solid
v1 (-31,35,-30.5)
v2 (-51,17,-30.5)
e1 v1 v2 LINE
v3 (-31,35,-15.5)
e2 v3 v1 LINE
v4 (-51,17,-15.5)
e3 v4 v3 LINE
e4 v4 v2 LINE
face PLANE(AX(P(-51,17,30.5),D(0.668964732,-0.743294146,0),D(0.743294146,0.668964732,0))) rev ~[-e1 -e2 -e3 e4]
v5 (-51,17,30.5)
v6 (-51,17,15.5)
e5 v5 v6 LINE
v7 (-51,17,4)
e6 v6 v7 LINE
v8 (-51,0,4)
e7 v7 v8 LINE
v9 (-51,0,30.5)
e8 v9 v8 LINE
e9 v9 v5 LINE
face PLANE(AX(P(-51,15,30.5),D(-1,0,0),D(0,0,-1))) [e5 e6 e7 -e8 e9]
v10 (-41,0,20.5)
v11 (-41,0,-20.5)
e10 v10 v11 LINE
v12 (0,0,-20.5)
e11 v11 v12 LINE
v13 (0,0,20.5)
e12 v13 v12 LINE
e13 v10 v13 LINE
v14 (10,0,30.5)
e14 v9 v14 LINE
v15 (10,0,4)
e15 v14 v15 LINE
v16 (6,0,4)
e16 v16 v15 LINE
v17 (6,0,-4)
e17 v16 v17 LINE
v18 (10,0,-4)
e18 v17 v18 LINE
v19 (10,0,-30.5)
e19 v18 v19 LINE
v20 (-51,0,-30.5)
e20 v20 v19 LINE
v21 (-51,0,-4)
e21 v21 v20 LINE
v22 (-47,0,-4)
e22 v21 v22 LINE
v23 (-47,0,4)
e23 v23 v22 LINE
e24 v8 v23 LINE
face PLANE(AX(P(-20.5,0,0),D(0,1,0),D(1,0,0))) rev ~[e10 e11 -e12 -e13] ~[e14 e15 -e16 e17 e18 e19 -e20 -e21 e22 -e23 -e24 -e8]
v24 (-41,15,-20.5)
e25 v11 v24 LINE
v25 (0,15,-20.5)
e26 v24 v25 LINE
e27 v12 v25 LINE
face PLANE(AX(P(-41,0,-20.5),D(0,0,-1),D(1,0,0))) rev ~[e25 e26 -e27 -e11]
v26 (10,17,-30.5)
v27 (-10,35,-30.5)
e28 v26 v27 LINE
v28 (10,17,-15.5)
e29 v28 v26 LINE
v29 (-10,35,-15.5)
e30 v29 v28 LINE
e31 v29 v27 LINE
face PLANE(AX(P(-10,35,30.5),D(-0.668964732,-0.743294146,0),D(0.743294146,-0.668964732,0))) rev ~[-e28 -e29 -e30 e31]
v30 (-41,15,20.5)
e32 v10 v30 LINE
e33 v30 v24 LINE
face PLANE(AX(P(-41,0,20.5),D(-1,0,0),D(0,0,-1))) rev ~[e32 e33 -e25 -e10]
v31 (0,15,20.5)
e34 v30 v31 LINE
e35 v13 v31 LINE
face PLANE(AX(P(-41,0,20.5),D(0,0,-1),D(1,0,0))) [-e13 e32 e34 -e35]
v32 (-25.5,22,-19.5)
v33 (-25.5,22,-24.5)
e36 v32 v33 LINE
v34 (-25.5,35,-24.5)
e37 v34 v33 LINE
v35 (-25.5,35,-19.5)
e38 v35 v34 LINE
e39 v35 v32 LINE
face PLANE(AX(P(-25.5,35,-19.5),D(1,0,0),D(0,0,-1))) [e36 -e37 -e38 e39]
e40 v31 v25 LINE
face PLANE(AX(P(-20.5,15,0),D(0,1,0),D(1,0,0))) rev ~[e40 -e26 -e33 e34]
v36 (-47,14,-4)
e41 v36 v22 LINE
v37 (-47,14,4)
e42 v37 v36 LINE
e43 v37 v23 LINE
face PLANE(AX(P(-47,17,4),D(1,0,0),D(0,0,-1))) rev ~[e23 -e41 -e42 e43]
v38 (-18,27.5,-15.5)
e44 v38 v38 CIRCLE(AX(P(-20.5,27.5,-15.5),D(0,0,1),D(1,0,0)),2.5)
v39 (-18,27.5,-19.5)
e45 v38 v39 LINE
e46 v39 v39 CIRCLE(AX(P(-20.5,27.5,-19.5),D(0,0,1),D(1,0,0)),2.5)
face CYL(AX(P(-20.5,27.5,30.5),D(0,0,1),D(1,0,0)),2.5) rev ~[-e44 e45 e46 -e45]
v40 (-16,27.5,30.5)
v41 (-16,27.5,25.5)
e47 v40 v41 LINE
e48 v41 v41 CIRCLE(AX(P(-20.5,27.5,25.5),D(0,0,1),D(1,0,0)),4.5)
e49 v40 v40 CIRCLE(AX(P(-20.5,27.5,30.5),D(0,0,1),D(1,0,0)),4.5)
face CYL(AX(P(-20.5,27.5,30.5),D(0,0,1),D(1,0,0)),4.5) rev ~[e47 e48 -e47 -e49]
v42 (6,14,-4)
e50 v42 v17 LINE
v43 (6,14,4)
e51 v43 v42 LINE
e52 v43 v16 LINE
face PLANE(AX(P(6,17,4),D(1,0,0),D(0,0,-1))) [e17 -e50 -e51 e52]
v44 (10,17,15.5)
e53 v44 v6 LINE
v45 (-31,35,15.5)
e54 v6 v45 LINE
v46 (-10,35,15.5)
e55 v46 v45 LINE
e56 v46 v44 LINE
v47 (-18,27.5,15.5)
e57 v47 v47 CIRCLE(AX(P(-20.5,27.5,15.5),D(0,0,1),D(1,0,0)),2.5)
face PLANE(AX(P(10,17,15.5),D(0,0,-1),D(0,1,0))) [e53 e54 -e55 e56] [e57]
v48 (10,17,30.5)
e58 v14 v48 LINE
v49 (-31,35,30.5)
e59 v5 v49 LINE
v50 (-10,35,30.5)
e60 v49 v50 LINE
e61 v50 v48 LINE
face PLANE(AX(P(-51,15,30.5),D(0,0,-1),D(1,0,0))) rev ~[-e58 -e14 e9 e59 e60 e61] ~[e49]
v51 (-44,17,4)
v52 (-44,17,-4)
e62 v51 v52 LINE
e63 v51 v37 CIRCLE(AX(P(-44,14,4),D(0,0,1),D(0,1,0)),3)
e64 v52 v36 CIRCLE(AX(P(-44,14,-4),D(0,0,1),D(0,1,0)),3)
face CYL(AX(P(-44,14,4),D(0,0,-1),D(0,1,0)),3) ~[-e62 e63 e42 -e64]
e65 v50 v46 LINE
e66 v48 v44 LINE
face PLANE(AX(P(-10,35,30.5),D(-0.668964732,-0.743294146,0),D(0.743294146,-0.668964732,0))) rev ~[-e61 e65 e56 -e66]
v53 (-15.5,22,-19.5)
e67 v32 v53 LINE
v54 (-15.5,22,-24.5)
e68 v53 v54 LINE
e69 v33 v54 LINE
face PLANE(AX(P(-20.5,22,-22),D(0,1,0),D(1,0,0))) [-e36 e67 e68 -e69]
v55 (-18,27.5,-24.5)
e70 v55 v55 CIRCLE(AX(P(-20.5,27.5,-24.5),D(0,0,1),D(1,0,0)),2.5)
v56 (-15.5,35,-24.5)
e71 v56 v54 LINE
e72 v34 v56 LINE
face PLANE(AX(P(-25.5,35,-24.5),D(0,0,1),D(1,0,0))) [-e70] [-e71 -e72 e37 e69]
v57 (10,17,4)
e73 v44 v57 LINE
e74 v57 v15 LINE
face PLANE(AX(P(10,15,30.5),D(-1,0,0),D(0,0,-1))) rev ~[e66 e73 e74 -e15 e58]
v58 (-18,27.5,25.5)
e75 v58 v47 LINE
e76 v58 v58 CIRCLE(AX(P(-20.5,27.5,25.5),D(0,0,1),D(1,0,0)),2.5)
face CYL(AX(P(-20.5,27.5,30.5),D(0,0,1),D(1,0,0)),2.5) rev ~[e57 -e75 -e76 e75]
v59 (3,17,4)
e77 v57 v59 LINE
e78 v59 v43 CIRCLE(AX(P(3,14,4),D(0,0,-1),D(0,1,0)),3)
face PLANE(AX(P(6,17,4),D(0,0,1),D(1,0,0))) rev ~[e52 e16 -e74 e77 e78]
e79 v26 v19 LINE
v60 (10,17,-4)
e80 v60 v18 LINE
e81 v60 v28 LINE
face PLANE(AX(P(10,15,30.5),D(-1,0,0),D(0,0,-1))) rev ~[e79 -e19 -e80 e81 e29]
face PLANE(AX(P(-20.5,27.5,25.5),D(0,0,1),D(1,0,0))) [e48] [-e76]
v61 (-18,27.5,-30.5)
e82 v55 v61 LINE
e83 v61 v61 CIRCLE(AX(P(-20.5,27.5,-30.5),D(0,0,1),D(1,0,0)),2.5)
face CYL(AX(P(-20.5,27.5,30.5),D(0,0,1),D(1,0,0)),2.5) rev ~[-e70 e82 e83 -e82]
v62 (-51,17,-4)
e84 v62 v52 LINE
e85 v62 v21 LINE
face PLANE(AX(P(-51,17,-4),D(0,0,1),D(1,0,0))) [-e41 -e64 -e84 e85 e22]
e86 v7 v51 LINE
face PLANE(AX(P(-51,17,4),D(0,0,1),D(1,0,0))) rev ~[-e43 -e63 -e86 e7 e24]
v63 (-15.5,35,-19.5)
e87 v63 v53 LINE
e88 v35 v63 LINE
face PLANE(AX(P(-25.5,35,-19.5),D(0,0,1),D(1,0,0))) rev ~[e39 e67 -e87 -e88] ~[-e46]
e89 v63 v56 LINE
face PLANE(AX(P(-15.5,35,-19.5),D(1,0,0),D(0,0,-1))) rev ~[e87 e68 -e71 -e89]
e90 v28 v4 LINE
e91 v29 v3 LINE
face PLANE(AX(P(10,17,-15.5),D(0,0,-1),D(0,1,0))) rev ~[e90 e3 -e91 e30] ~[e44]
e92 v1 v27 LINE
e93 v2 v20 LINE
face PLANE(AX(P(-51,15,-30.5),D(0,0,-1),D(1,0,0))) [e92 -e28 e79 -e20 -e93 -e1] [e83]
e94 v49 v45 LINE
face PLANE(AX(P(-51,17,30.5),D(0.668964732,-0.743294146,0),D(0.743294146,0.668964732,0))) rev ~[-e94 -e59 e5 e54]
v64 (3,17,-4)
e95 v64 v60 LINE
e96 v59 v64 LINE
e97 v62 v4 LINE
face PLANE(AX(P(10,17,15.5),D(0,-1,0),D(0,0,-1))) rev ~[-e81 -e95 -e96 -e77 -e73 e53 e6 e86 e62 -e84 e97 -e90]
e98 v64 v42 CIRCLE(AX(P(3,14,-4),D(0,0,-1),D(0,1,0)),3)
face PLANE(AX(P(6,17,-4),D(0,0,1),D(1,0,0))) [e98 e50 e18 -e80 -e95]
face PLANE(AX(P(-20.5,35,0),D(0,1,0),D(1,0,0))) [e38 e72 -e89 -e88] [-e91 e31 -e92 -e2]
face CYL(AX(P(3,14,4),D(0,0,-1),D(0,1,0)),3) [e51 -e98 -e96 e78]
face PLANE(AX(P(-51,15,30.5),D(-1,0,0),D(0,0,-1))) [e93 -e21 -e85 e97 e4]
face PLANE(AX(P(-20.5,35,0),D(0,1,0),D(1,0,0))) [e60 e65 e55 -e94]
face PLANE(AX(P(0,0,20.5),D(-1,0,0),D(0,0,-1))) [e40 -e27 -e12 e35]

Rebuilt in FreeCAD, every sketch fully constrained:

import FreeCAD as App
import Part
import Sketcher
Q = App.Units.Quantity


def edges_at(feature, points):
    """Names of the edges that pass closest to the given points."""
    edges = feature.Shape.Edges
    near = lambda p: min(range(len(edges)), key=lambda i: edges[i].distToShape(Part.Vertex(*p))[0])
    return sorted({f"Edge{near(p) + 1}" for p in points})


def add_polygon(sketch, points):
    """Adds a closed chain of lines whose ends are joined by coincident constraints."""
    first, n = sketch.GeometryCount, len(points)
    for a, b in zip(points, points[1:] + points[:1]):
        sketch.addGeometry(Part.LineSegment(App.Vector(*a, 0), App.Vector(*b, 0)), False)
    for i in range(n):
        sketch.addConstraint(Sketcher.Constraint("Coincident", first + i, 2, first + (i + 1) % n, 1))

doc = App.newDocument("Part")
params = doc.addObject("Spreadsheet::Sheet", "Params")
for row, (alias, value) in enumerate([
    ("sketch1_width", "61 mm"),
    ("sketch1_width2", "41 mm"),
    ("pad1_length", "15 mm"),
    ("sketch2_width", "61 mm"),
    ("pad2_length", "20 mm"),
    ("sketch3_diameter", "5 mm"),
    ("sketch3_width", "20 mm"),
    ("sketch3_height", "18 mm"),
    ("pocket1_length", "90 mm"),
    ("sketch4_width", "18 mm"),
    ("sketch4_height", "31 mm"),
    ("pocket2_length", "90 mm"),
    ("sketch5_width", "4 mm"),
    ("sketch5_height", "8 mm"),
    ("pocket3_length", "90 mm"),
    ("sketch6_diameter", "9 mm"),
    ("pocket4_length", "5 mm"),
    ("sketch7_width", "10 mm"),
    ("sketch7_height", "5 mm"),
    ("pocket5_length", "13 mm"),
    ("fillet_radius", "3 mm"),
], start=1):
    params.set(f"A{row}", alias)
    params.set(f"B{row}", "=" + value)
    params.setAlias(f"B{row}", alias)

body = doc.addObject("PartDesign::Body", "Body")

# Sketch on XZ plane
sketch1 = body.newObject("Sketcher::SketchObject", "Sketch")
sketch1.AttachmentSupport = (doc.getObject("XZ_Plane"), [""])
sketch1.MapMode = "FlatFace"
add_polygon(sketch1, [(-51, -30.5), (-51, 30.5), (10, 30.5), (10, -30.5)])  # lines 0-3
add_polygon(sketch1, [(0, 20.5), (-41, 20.5), (-41, -20.5), (0, -20.5)])  # lines 4-7
sketch1.addConstraint([
    Sketcher.Constraint("Vertical", 0),
    Sketcher.Constraint("Horizontal", 1),
    Sketcher.Constraint("Vertical", 2),
    Sketcher.Constraint("Horizontal", 3),
    Sketcher.Constraint("Horizontal", 4),
    Sketcher.Constraint("Vertical", 5),
    Sketcher.Constraint("Horizontal", 6),
    Sketcher.Constraint("Vertical", 7),
    Sketcher.Constraint("Symmetric", 6, 2, 7, 2, -1, 1),
    Sketcher.Constraint("Equal", 3, 0),
    Sketcher.Constraint("Equal", 6, 5),
    Sketcher.Constraint("DistanceX", 1, 1, 1, 2, Q("61 mm")),
    Sketcher.Constraint("DistanceX", 4, 2, 4, 1, Q("41 mm")),
    Sketcher.Constraint("DistanceX", 0, 2, -1, 1, Q("51 mm")),
    Sketcher.Constraint("DistanceY", 4, 2, 0, 2, Q("10 mm")),
])
sketch1.setExpression("Constraints[19]", "Params.sketch1_width")
sketch1.setExpression("Constraints[20]", "Params.sketch1_width2")
pad1 = body.newObject("PartDesign::Pad", "Pad")
pad1.Profile = sketch1
pad1.setExpression("Length", "Params.pad1_length")
pad1.Reversed = True

# Sketch on XZ plane
sketch2 = body.newObject("Sketcher::SketchObject", "Sketch001")
sketch2.AttachmentSupport = (doc.getObject("XZ_Plane"), [""])
sketch2.MapMode = "FlatFace"
sketch2.AttachmentOffset = App.Placement(App.Vector(0, 0, -15), App.Rotation())
add_polygon(sketch2, [(-51, -30.5), (-51, 30.5), (10, 30.5), (10, -30.5)])  # lines 0-3
sketch2.addConstraint([
    Sketcher.Constraint("Vertical", 0),
    Sketcher.Constraint("Horizontal", 1),
    Sketcher.Constraint("Vertical", 2),
    Sketcher.Constraint("Horizontal", 3),
    Sketcher.Constraint("Equal", 3, 0),
    Sketcher.Constraint("DistanceX", 1, 1, 1, 2, Q("61 mm")),
    Sketcher.Constraint("DistanceX", 0, 2, -1, 1, Q("51 mm")),
    Sketcher.Constraint("DistanceY", -1, 1, 0, 2, Q("30.5 mm")),
])
sketch2.setExpression("Constraints[9]", "Params.sketch2_width")
pad2 = body.newObject("PartDesign::Pad", "Pad001")
pad2.Profile = sketch2
pad2.setExpression("Length", "Params.pad2_length")
pad2.Reversed = True

# Sketch on XY plane
sketch3 = body.newObject("Sketcher::SketchObject", "Sketch002")
sketch3.AttachmentSupport = (doc.getObject("XY_Plane"), [""])
sketch3.MapMode = "FlatFace"
sketch3.AttachmentOffset = App.Placement(App.Vector(0, 0, 30.5), App.Rotation())
sketch3.addGeometry(Part.Circle(App.Vector(-20.5, 27.5, 0), App.Vector(0, 0, 1), 2.5), False)  # 0
add_polygon(sketch3, [(-51, 17), (-31, 35), (-51, 35)])  # lines 1-3
add_polygon(sketch3, [(-10, 35), (10, 17), (10, 35)])  # lines 4-6
sketch3.addConstraint([
    Sketcher.Constraint("Horizontal", 2),
    Sketcher.Constraint("Vertical", 3),
    Sketcher.Constraint("Vertical", 5),
    Sketcher.Constraint("Horizontal", 6),
    Sketcher.Constraint("Horizontal", 3, 2, 4, 2),
    Sketcher.Constraint("Horizontal", 2, 2, 5, 2),
    Sketcher.Constraint("Equal", 2, 6),
    Sketcher.Constraint("Diameter", 0, Q("5 mm")),
    Sketcher.Constraint("DistanceX", 2, 2, 2, 1, Q("20 mm")),
    Sketcher.Constraint("DistanceY", 3, 2, 3, 1, Q("18 mm")),
    Sketcher.Constraint("DistanceX", 1, 2, -1, 1, Q("31 mm")),
    Sketcher.Constraint("DistanceY", -1, 1, 1, 2, Q("35 mm")),
    Sketcher.Constraint("DistanceX", -1, 1, 4, 2, Q("10 mm")),
    Sketcher.Constraint("DistanceX", 0, 3, -1, 1, Q("20.5 mm")),
    Sketcher.Constraint("DistanceY", -1, 1, 0, 3, Q("27.5 mm")),
])
sketch3.setExpression("Constraints[13]", "Params.sketch3_diameter")
sketch3.setExpression("Constraints[14]", "Params.sketch3_width")
sketch3.setExpression("Constraints[15]", "Params.sketch3_height")
pocket1 = body.newObject("PartDesign::Pocket", "Pocket")
pocket1.Profile = sketch3
pocket1.setExpression("Length", "Params.pocket1_length")

# Sketch on YZ plane
sketch4 = body.newObject("Sketcher::SketchObject", "Sketch003")
sketch4.AttachmentSupport = (doc.getObject("YZ_Plane"), [""])
sketch4.MapMode = "FlatFace"
sketch4.AttachmentOffset = App.Placement(App.Vector(0, 0, 10), App.Rotation())
add_polygon(sketch4, [(35, 15.5), (17, 15.5), (17, -15.5), (35, -15.5)])  # lines 0-3
sketch4.addConstraint([
    Sketcher.Constraint("Horizontal", 0),
    Sketcher.Constraint("Vertical", 1),
    Sketcher.Constraint("Horizontal", 2),
    Sketcher.Constraint("Vertical", 3),
    Sketcher.Constraint("DistanceX", 0, 2, 0, 1, Q("18 mm")),
    Sketcher.Constraint("DistanceY", 1, 2, 1, 1, Q("31 mm")),
    Sketcher.Constraint("DistanceX", -1, 1, 0, 2, Q("17 mm")),
    Sketcher.Constraint("DistanceY", -1, 1, 0, 2, Q("15.5 mm")),
])
sketch4.setExpression("Constraints[8]", "Params.sketch4_width")
sketch4.setExpression("Constraints[9]", "Params.sketch4_height")
pocket2 = body.newObject("PartDesign::Pocket", "Pocket001")
pocket2.Profile = sketch4
pocket2.setExpression("Length", "Params.pocket2_length")

# Sketch on XZ plane
sketch5 = body.newObject("Sketcher::SketchObject", "Sketch004")
sketch5.AttachmentSupport = (doc.getObject("XZ_Plane"), [""])
sketch5.MapMode = "FlatFace"
sketch5.AttachmentOffset = App.Placement(App.Vector(0, 0, -17), App.Rotation())
add_polygon(sketch5, [(-51, -4), (-51, 4), (-47, 4), (-47, -4)])  # lines 0-3
add_polygon(sketch5, [(6, -4), (6, 4), (10, 4), (10, -4)])  # lines 4-7
sketch5.addConstraint([
    Sketcher.Constraint("Vertical", 0),
    Sketcher.Constraint("Horizontal", 1),
    Sketcher.Constraint("Vertical", 2),
    Sketcher.Constraint("Horizontal", 3),
    Sketcher.Constraint("Vertical", 4),
    Sketcher.Constraint("Horizontal", 5),
    Sketcher.Constraint("Vertical", 6),
    Sketcher.Constraint("Horizontal", 7),
    Sketcher.Constraint("Horizontal", 1, 2, 4, 2),
    Sketcher.Constraint("Horizontal", 3, 2, 6, 2),
    Sketcher.Constraint("Equal", 3, 5),
    Sketcher.Constraint("DistanceX", 1, 1, 1, 2, Q("4 mm")),
    Sketcher.Constraint("DistanceY", 0, 1, 0, 2, Q("8 mm")),
    Sketcher.Constraint("DistanceX", 0, 2, -1, 1, Q("51 mm")),
    Sketcher.Constraint("DistanceY", -1, 1, 0, 2, Q("4 mm")),
    Sketcher.Constraint("DistanceX", -1, 1, 4, 2, Q("6 mm")),
])
sketch5.setExpression("Constraints[19]", "Params.sketch5_width")
sketch5.setExpression("Constraints[20]", "Params.sketch5_height")
pocket3 = body.newObject("PartDesign::Pocket", "Pocket002")
pocket3.Profile = sketch5
pocket3.setExpression("Length", "Params.pocket3_length")
pocket3.Reversed = True

# Sketch on XY plane
sketch6 = body.newObject("Sketcher::SketchObject", "Sketch005")
sketch6.AttachmentSupport = (doc.getObject("XY_Plane"), [""])
sketch6.MapMode = "FlatFace"
sketch6.AttachmentOffset = App.Placement(App.Vector(0, 0, 30.5), App.Rotation())
sketch6.addGeometry(Part.Circle(App.Vector(-20.5, 27.5, 0), App.Vector(0, 0, 1), 4.5), False)
sketch6.addConstraint([
    Sketcher.Constraint("Diameter", 0, Q("9 mm")),
    Sketcher.Constraint("DistanceX", 0, 3, -1, 1, Q("20.5 mm")),
    Sketcher.Constraint("DistanceY", -1, 1, 0, 3, Q("27.5 mm")),
])
sketch6.setExpression("Constraints[0]", "Params.sketch6_diameter")
pocket4 = body.newObject("PartDesign::Pocket", "Pocket003")
pocket4.Profile = sketch6
pocket4.setExpression("Length", "Params.pocket4_length")

# Sketch on XZ plane
sketch7 = body.newObject("Sketcher::SketchObject", "Sketch006")
sketch7.AttachmentSupport = (doc.getObject("XZ_Plane"), [""])
sketch7.MapMode = "FlatFace"
sketch7.AttachmentOffset = App.Placement(App.Vector(0, 0, -35), App.Rotation())
add_polygon(sketch7, [(-25.5, -24.5), (-25.5, -19.5), (-15.5, -19.5), (-15.5, -24.5)])  # lines 0-3
sketch7.addConstraint([
    Sketcher.Constraint("Vertical", 0),
    Sketcher.Constraint("Horizontal", 1),
    Sketcher.Constraint("Vertical", 2),
    Sketcher.Constraint("Horizontal", 3),
    Sketcher.Constraint("DistanceX", 1, 1, 1, 2, Q("10 mm")),
    Sketcher.Constraint("DistanceY", 0, 1, 0, 2, Q("5 mm")),
    Sketcher.Constraint("DistanceX", 0, 2, -1, 1, Q("25.5 mm")),
    Sketcher.Constraint("DistanceY", 0, 2, -1, 1, Q("19.5 mm")),
])
sketch7.setExpression("Constraints[8]", "Params.sketch7_width")
sketch7.setExpression("Constraints[9]", "Params.sketch7_height")
pocket5 = body.newObject("PartDesign::Pocket", "Pocket004")
pocket5.Profile = sketch7
pocket5.setExpression("Length", "Params.pocket5_length")
pocket5.Reversed = True
doc.recompute()

fillet = body.newObject("PartDesign::Fillet", "Fillet")
fillet.Base = (pocket5, edges_at(pocket5, [(6, 17, 0), (-47, 17, 0)]))
fillet.setExpression("Radius", "Params.fillet_radius")

doc.recompute()
